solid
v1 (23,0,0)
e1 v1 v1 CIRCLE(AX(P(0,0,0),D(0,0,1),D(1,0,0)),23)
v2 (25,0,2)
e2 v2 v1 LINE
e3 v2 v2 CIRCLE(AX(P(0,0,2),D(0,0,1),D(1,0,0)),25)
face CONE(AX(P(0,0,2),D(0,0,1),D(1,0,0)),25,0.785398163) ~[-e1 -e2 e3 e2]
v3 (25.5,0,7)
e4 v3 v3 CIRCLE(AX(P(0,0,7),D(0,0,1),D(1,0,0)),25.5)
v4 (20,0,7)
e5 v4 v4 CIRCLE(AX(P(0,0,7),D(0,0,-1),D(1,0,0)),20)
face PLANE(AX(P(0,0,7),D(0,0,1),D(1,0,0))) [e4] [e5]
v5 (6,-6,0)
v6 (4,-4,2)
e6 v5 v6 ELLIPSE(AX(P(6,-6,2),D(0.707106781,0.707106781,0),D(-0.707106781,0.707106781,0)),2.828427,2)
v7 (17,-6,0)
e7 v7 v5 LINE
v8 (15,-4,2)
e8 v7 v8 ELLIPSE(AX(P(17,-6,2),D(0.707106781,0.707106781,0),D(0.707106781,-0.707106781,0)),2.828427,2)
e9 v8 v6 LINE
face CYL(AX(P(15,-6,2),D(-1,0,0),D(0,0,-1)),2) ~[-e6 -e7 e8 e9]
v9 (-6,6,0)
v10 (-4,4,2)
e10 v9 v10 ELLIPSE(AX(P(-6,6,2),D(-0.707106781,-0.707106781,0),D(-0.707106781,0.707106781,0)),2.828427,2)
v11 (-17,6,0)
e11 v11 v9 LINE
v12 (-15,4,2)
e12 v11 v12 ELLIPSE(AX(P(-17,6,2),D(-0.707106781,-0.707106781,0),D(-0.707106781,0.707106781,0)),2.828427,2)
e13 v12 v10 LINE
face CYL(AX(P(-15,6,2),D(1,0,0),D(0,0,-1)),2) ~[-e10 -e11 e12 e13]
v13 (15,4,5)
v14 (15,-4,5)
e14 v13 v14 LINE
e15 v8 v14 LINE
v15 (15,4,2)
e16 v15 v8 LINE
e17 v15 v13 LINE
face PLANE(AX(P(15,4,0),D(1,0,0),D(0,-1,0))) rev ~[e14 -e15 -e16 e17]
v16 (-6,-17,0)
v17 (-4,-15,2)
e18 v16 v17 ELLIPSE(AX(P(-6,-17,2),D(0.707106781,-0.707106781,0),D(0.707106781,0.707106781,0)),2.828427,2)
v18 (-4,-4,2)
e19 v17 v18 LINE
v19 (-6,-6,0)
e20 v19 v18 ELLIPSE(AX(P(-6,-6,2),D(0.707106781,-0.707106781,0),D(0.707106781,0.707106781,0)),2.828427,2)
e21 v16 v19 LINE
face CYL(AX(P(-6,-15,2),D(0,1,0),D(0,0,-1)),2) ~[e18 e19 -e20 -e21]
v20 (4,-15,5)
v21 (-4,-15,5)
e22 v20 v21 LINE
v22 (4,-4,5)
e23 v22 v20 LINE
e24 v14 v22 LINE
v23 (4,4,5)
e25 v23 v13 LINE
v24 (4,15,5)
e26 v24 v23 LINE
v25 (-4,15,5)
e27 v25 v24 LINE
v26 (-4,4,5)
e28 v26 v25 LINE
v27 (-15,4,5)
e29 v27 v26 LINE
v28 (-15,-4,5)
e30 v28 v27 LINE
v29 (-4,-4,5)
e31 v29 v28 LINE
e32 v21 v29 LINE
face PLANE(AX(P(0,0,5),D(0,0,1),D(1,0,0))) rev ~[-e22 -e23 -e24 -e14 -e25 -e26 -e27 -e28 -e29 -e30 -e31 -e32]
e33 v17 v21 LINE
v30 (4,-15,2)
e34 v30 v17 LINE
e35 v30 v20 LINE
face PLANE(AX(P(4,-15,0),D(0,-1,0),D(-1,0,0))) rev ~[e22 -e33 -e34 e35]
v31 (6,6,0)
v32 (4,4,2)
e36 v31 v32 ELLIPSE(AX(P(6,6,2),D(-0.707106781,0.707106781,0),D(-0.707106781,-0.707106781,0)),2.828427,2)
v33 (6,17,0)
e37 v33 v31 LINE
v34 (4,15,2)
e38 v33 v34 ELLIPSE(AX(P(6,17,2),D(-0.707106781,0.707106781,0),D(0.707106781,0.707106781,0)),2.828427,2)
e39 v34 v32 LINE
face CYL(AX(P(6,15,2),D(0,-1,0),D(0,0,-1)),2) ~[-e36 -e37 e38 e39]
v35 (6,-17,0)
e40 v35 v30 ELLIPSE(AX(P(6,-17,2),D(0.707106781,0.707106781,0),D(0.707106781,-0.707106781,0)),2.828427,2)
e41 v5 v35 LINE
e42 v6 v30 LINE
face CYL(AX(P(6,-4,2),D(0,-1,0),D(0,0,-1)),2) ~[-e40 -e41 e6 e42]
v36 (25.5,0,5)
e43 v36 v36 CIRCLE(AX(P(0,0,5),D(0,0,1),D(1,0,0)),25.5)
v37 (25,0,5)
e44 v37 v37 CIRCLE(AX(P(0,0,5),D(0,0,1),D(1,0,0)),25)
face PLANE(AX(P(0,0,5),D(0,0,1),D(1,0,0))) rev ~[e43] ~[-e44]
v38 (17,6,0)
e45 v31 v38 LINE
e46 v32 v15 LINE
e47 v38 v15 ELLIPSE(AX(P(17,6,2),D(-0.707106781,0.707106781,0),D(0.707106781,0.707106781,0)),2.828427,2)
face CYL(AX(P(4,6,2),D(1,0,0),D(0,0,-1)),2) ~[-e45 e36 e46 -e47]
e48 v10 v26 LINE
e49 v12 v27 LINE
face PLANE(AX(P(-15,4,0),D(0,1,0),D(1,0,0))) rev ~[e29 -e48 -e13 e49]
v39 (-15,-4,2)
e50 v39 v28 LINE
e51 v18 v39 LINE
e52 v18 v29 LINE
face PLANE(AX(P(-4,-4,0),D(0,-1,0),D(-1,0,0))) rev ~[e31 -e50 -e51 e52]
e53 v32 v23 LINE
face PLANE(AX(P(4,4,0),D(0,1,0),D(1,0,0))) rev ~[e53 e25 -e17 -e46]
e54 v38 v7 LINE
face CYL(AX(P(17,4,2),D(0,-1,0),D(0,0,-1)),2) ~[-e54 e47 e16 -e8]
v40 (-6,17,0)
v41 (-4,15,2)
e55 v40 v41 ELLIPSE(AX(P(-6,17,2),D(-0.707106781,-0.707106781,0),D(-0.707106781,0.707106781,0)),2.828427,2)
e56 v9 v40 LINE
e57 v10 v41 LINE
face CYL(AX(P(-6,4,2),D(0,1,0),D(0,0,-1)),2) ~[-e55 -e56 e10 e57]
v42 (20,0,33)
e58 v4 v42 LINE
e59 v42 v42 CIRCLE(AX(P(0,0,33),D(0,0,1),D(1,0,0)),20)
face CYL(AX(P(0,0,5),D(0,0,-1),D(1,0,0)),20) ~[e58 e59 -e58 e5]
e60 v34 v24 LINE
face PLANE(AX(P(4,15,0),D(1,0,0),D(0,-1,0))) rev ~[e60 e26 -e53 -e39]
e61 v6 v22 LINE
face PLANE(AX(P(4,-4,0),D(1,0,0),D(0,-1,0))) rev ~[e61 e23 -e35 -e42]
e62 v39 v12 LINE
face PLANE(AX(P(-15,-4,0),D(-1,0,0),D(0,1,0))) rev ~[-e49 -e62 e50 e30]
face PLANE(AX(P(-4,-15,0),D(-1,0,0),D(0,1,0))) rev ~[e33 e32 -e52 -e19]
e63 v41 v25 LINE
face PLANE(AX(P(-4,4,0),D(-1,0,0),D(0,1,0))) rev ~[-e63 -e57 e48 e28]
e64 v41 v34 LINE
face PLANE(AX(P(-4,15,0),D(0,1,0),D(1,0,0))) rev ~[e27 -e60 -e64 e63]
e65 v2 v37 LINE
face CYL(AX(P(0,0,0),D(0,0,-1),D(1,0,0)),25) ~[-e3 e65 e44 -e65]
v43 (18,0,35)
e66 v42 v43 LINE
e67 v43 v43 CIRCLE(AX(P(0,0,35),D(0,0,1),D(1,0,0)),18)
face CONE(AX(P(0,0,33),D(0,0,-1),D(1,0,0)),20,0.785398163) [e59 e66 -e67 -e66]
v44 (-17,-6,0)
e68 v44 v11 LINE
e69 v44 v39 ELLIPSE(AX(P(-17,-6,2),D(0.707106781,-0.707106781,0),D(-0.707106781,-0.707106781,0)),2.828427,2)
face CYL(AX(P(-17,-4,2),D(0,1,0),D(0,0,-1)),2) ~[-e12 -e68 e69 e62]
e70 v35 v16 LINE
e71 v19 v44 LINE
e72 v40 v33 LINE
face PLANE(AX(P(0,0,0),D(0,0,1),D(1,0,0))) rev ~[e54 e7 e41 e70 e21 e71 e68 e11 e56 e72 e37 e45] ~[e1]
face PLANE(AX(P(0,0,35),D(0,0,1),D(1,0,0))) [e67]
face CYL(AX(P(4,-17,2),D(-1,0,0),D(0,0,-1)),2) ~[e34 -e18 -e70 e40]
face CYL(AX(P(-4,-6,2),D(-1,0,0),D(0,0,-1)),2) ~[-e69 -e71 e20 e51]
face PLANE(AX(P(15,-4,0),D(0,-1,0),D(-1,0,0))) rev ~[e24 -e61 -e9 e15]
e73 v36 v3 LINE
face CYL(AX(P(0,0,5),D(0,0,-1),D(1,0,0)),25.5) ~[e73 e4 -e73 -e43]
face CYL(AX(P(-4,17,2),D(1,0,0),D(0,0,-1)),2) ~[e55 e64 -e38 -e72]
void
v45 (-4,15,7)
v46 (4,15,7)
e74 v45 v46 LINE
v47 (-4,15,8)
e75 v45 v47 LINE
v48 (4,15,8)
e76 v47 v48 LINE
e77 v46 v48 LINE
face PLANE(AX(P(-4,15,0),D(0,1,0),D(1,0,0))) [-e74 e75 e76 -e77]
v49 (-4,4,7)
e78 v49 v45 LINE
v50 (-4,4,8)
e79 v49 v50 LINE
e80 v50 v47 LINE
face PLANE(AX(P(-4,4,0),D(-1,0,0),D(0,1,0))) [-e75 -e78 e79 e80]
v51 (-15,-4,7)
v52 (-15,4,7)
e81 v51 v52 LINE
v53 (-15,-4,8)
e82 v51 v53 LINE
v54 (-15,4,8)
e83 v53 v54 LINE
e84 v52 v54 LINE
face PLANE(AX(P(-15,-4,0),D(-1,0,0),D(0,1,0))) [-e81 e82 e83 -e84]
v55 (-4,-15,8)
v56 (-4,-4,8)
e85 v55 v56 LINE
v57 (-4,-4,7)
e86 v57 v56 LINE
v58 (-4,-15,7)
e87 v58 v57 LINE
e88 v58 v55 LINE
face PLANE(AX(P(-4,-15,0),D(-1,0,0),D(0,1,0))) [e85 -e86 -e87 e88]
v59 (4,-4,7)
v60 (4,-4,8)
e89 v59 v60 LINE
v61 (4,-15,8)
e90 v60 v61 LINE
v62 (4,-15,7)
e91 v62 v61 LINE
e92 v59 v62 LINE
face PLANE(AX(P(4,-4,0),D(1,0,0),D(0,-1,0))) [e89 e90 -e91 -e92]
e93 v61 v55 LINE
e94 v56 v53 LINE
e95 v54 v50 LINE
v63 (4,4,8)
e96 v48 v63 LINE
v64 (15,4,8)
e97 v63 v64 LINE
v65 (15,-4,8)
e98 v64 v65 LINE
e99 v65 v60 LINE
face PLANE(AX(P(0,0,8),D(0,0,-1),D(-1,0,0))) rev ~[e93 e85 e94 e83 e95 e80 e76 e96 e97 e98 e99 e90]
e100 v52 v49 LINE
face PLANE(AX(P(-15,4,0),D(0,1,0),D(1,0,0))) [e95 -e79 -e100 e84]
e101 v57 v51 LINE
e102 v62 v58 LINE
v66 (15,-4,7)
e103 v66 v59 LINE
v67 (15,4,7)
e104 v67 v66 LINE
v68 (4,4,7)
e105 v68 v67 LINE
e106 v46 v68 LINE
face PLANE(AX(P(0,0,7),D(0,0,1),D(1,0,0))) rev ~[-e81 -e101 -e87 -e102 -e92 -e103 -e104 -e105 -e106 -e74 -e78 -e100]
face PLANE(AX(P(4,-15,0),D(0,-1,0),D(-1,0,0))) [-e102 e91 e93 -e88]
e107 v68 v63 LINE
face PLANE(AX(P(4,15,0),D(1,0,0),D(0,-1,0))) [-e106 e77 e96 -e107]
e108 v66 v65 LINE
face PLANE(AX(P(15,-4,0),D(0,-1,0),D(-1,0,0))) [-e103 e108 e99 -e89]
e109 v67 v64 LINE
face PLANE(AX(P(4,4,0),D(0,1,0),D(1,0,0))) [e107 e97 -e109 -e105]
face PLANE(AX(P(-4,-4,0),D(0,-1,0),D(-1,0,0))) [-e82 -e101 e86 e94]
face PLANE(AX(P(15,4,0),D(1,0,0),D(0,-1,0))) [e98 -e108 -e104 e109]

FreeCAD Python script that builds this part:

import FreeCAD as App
import Part
import Sketcher
Q = App.Units.Quantity


def edges_at(feature, points):
    """Names of the edges that pass closest to the given points."""
    edges = feature.Shape.Edges
    near = lambda p: min(range(len(edges)), key=lambda i: edges[i].distToShape(Part.Vertex(*p))[0])
    return sorted({f"Edge{near(p) + 1}" for p in points})

doc = App.newDocument("Part")
body = doc.addObject("PartDesign::Body", "Body")

# Sketch on XY plane
sketch1 = body.newObject("Sketcher::SketchObject", "Sketch")
sketch1.AttachmentSupport = (doc.getObject("XY_Plane"), [""])
sketch1.MapMode = "FlatFace"
sketch1.addGeometry(Part.Circle(App.Vector(0, 0, 0), App.Vector(0, 0, 1), 25), False)
sketch1.addConstraint(Sketcher.Constraint("Coincident", 0, 3, -1, 1))
sketch1.addConstraint(Sketcher.Constraint("Diameter", 0, Q("50 mm")))
pad1 = body.newObject("PartDesign::Pad", "Pad")
pad1.Profile = sketch1
pad1.Length = 5

# Sketch on XY plane
sketch2 = body.newObject("Sketcher::SketchObject", "Sketch001")
sketch2.AttachmentSupport = (doc.getObject("XY_Plane"), [""])
sketch2.MapMode = "FlatFace"
sketch2.AttachmentOffset = App.Placement(App.Vector(0, 0, 5), App.Rotation())
sketch2.addGeometry(Part.Circle(App.Vector(0, 0, 0), App.Vector(0, 0, 1), 20), False)
sketch2.addConstraint(Sketcher.Constraint("Coincident", 0, 3, -1, 1))
sketch2.addConstraint(Sketcher.Constraint("Diameter", 0, Q("40 mm")))
pad2 = body.newObject("PartDesign::Pad", "Pad001")
pad2.Profile = sketch2
pad2.Length = 30
doc.recompute()

chamfer = body.newObject("PartDesign::Chamfer", "Chamfer")
chamfer.Base = (pad2, edges_at(pad2, [(-20, 0, 35), (-25, 0, 0)]))
chamfer.Size = 2

# Sketch on XY plane
sketch3 = body.newObject("Sketcher::SketchObject", "Sketch002")
sketch3.AttachmentSupport = (doc.getObject("XY_Plane"), [""])
sketch3.MapMode = "FlatFace"
sketch3.addGeometry(Part.LineSegment(App.Vector(15, 4, 0), App.Vector(15, -4, 0)), False)
sketch3.addGeometry(Part.LineSegment(App.Vector(15, -4, 0), App.Vector(4, -4, 0)), False)
sketch3.addGeometry(Part.LineSegment(App.Vector(4, -4, 0), App.Vector(4, -15, 0)), False)
sketch3.addGeometry(Part.LineSegment(App.Vector(4, -15, 0), App.Vector(-4, -15, 0)), False)
sketch3.addGeometry(Part.LineSegment(App.Vector(-4, -15, 0), App.Vector(-4, -4, 0)), False)
sketch3.addGeometry(Part.LineSegment(App.Vector(-4, -4, 0), App.Vector(-15, -4, 0)), False)
sketch3.addGeometry(Part.LineSegment(App.Vector(-15, -4, 0), App.Vector(-15, 4, 0)), False)
sketch3.addGeometry(Part.LineSegment(App.Vector(-15, 4, 0), App.Vector(-4, 4, 0)), False)
sketch3.addGeometry(Part.LineSegment(App.Vector(-4, 4, 0), App.Vector(-4, 15, 0)), False)
sketch3.addGeometry(Part.LineSegment(App.Vector(-4, 15, 0), App.Vector(4, 15, 0)), False)
sketch3.addGeometry(Part.LineSegment(App.Vector(4, 15, 0), App.Vector(4, 4, 0)), False)
sketch3.addGeometry(Part.LineSegment(App.Vector(4, 4, 0), App.Vector(15, 4, 0)), False)
sketch3.addConstraint(Sketcher.Constraint("Coincident", 0, 2, 1, 1))
sketch3.addConstraint(Sketcher.Constraint("Coincident", 1, 2, 2, 1))
sketch3.addConstraint(Sketcher.Constraint("Coincident", 2, 2, 3, 1))
sketch3.addConstraint(Sketcher.Constraint("Coincident", 3, 2, 4, 1))
sketch3.addConstraint(Sketcher.Constraint("Coincident", 4, 2, 5, 1))
sketch3.addConstraint(Sketcher.Constraint("Coincident", 5, 2, 6, 1))
sketch3.addConstraint(Sketcher.Constraint("Coincident", 6, 2, 7, 1))
sketch3.addConstraint(Sketcher.Constraint("Coincident", 7, 2, 8, 1))
sketch3.addConstraint(Sketcher.Constraint("Coincident", 8, 2, 9, 1))
sketch3.addConstraint(Sketcher.Constraint("Coincident", 9, 2, 10, 1))
sketch3.addConstraint(Sketcher.Constraint("Coincident", 10, 2, 11, 1))
sketch3.addConstraint(Sketcher.Constraint("Coincident", 11, 2, 0, 1))
sketch3.addConstraint(Sketcher.Constraint("Vertical", 0))
sketch3.addConstraint(Sketcher.Constraint("Horizontal", 1))
sketch3.addConstraint(Sketcher.Constraint("Vertical", 2))
sketch3.addConstraint(Sketcher.Constraint("Horizontal", 3))
sketch3.addConstraint(Sketcher.Constraint("Vertical", 4))
sketch3.addConstraint(Sketcher.Constraint("Horizontal", 5))
sketch3.addConstraint(Sketcher.Constraint("Vertical", 6))
sketch3.addConstraint(Sketcher.Constraint("Horizontal", 7))
sketch3.addConstraint(Sketcher.Constraint("Vertical", 8))
sketch3.addConstraint(Sketcher.Constraint("Horizontal", 9))
sketch3.addConstraint(Sketcher.Constraint("Vertical", 10))
sketch3.addConstraint(Sketcher.Constraint("Horizontal", 11))
sketch3.addConstraint(Sketcher.Constraint("Symmetric", 0, 2, 6, 2, -1, 1))
sketch3.addConstraint(Sketcher.Constraint("Symmetric", 2, 2, 8, 2, -1, 1))
sketch3.addConstraint(Sketcher.Constraint("Symmetric", 4, 2, 10, 2, -1, 1))
sketch3.addConstraint(Sketcher.Constraint("Symmetric", 1, 2, 4, 2, -2))
sketch3.addConstraint(Sketcher.Constraint("Equal", 9, 0))
sketch3.addConstraint(Sketcher.Constraint("Equal", 11, 2))
sketch3.addConstraint(Sketcher.Constraint("DistanceX", 3, 2, 3, 1, Q("8 mm")))
sketch3.addConstraint(Sketcher.Constraint("DistanceX", 5, 2, 0, 2, Q("30 mm")))
pocket1 = body.newObject("PartDesign::Pocket", "Pocket")
pocket1.Profile = sketch3
pocket1.Length = 8
pocket1.Reversed = True
doc.recompute()

fillet = body.newObject("PartDesign::Fillet", "Fillet")
fillet.Base = (pocket1, edges_at(pocket1, [
    (-4, 9.5, 0),
    (0, 15, 0),
    (4, 9.5, 0),
    (9.5, 4, 0),
    (15, 0, 0),
    (9.5, -4, 0),
    (4, -9.5, 0),
    (-4, -9.5, 0),
    (0, -15, 0),
    (-9.5, -4, 0),
    (-15, 0, 0),
    (-9.5, 4, 0),
]))
fillet.Radius = 2

# Sketch on XY plane
sketch4 = body.newObject("Sketcher::SketchObject", "Sketch003")
sketch4.AttachmentSupport = (doc.getObject("XY_Plane"), [""])
sketch4.MapMode = "FlatFace"
sketch4.AttachmentOffset = App.Placement(App.Vector(0, 0, 5), App.Rotation())
sketch4.addGeometry(Part.Circle(App.Vector(0, 0, 0), App.Vector(0, 0, 1), 26), False)
sketch4.addConstraint(Sketcher.Constraint("Coincident", 0, 3, -1, 1))
sketch4.addConstraint(Sketcher.Constraint("Diameter", 0, Q("51 mm")))
pad3 = body.newObject("PartDesign::Pad", "Pad002")
pad3.Profile = sketch4
pad3.Length = 2

doc.recompute()
